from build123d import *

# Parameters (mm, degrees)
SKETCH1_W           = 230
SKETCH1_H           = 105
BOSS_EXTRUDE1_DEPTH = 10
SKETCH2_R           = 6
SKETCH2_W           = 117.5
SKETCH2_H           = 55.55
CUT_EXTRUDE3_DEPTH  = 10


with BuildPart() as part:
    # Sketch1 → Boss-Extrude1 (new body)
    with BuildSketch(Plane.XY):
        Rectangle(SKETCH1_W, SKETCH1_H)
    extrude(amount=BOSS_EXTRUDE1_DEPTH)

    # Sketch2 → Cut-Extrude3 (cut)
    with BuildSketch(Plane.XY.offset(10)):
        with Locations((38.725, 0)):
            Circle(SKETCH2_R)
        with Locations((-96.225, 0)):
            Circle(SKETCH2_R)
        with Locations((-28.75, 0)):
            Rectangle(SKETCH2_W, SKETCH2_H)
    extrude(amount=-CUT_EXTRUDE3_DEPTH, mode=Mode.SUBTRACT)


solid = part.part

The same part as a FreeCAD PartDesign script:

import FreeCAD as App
import Part
import Sketcher
from FreeCAD import Vector


def add_polygon(sketch, points):
    """Adds a closed chain of lines whose ends are joined by coincident constraints."""
    first, n = sketch.GeometryCount, len(points)
    for a, b in zip(points, points[1:] + points[:1]):
        sketch.addGeometry(Part.LineSegment(App.Vector(*a, 0), App.Vector(*b, 0)), False)
    for i in range(n):
        sketch.addConstraint(Sketcher.Constraint("Coincident", first + i, 2, first + (i + 1) % n, 1))

doc = App.newDocument("Part")
body = doc.addObject("PartDesign::Body", "Body")

# Sketch on XY plane
sketch1 = body.newObject("Sketcher::SketchObject", "Sketch")
sketch1.AttachmentSupport = (doc.getObject("XY_Plane"), [""])
sketch1.MapMode = "FlatFace"
add_polygon(sketch1, [(-115, 52), (-115, -52), (115, -52), (115, 52)])  # lines 0-3
sketch1.addConstraint(Sketcher.Constraint("Vertical", 0))
sketch1.addConstraint(Sketcher.Constraint("Horizontal", 1))
sketch1.addConstraint(Sketcher.Constraint("Vertical", 2))
sketch1.addConstraint(Sketcher.Constraint("Horizontal", 3))
sketch1.addConstraint(Sketcher.Constraint("Symmetric", 0, 2, 2, 2, -1, 1))
sketch1.addConstraint(Sketcher.Constraint("DistanceX", 1, 1, 1, 2, 230.0))
sketch1.addConstraint(Sketcher.Constraint("DistanceY", 0, 2, 0, 1, 105.0))
pad1 = body.newObject("PartDesign::Pad", "Pad")
pad1.Profile = sketch1
pad1.Length = 10

# Sketch on XY plane
sketch2 = body.newObject("Sketcher::SketchObject", "Sketch001")
sketch2.AttachmentSupport = (doc.getObject("XY_Plane"), [""])
sketch2.MapMode = "FlatFace"
sketch2.AttachmentOffset = App.Placement(Vector(0, 0, 10), App.Rotation())
sketch2.addGeometry(Part.Circle(Vector(39, 0, 0), Vector(0, 0, 1), 6), False)  # 0
sketch2.addGeometry(Part.Circle(Vector(-96, 0, 0), Vector(0, 0, 1), 6), False)  # 1
add_polygon(sketch2, [(-88, 28), (-88, -28), (30, -28), (30, 28)])  # lines 2-5
sketch2.addConstraint(Sketcher.Constraint("Vertical", 2))
sketch2.addConstraint(Sketcher.Constraint("Horizontal", 3))
sketch2.addConstraint(Sketcher.Constraint("Vertical", 4))
sketch2.addConstraint(Sketcher.Constraint("Horizontal", 5))
sketch2.addConstraint(Sketcher.Constraint("Equal", 0, 1))
sketch2.addConstraint(Sketcher.Constraint("PointOnObject", 0, 3, -1))
sketch2.addConstraint(Sketcher.Constraint("PointOnObject", 1, 3, -1))
sketch2.addConstraint(Sketcher.Constraint("Diameter", 0, 12.0))
sketch2.addConstraint(Sketcher.Constraint("DistanceX", 3, 1, 3, 2, 117.5))
sketch2.addConstraint(Sketcher.Constraint("DistanceX", -1, 1, 3, 2, 30.0))
sketch2.addConstraint(Sketcher.Constraint("DistanceY", 2, 2, 2, 1, 55.55))
sketch2.addConstraint(Sketcher.Constraint("DistanceX", 1, 3, 0, 3, 134.95))
sketch2.addConstraint(Sketcher.Constraint("DistanceX", -1, 1, 0, 3, 38.725))
sketch2.addConstraint(Sketcher.Constraint("DistanceY", 2, 2, -1, 1, 27.775))
pocket1 = body.newObject("PartDesign::Pocket", "Pocket")
pocket1.Profile = sketch2
pocket1.Length = 10

doc.recompute()
